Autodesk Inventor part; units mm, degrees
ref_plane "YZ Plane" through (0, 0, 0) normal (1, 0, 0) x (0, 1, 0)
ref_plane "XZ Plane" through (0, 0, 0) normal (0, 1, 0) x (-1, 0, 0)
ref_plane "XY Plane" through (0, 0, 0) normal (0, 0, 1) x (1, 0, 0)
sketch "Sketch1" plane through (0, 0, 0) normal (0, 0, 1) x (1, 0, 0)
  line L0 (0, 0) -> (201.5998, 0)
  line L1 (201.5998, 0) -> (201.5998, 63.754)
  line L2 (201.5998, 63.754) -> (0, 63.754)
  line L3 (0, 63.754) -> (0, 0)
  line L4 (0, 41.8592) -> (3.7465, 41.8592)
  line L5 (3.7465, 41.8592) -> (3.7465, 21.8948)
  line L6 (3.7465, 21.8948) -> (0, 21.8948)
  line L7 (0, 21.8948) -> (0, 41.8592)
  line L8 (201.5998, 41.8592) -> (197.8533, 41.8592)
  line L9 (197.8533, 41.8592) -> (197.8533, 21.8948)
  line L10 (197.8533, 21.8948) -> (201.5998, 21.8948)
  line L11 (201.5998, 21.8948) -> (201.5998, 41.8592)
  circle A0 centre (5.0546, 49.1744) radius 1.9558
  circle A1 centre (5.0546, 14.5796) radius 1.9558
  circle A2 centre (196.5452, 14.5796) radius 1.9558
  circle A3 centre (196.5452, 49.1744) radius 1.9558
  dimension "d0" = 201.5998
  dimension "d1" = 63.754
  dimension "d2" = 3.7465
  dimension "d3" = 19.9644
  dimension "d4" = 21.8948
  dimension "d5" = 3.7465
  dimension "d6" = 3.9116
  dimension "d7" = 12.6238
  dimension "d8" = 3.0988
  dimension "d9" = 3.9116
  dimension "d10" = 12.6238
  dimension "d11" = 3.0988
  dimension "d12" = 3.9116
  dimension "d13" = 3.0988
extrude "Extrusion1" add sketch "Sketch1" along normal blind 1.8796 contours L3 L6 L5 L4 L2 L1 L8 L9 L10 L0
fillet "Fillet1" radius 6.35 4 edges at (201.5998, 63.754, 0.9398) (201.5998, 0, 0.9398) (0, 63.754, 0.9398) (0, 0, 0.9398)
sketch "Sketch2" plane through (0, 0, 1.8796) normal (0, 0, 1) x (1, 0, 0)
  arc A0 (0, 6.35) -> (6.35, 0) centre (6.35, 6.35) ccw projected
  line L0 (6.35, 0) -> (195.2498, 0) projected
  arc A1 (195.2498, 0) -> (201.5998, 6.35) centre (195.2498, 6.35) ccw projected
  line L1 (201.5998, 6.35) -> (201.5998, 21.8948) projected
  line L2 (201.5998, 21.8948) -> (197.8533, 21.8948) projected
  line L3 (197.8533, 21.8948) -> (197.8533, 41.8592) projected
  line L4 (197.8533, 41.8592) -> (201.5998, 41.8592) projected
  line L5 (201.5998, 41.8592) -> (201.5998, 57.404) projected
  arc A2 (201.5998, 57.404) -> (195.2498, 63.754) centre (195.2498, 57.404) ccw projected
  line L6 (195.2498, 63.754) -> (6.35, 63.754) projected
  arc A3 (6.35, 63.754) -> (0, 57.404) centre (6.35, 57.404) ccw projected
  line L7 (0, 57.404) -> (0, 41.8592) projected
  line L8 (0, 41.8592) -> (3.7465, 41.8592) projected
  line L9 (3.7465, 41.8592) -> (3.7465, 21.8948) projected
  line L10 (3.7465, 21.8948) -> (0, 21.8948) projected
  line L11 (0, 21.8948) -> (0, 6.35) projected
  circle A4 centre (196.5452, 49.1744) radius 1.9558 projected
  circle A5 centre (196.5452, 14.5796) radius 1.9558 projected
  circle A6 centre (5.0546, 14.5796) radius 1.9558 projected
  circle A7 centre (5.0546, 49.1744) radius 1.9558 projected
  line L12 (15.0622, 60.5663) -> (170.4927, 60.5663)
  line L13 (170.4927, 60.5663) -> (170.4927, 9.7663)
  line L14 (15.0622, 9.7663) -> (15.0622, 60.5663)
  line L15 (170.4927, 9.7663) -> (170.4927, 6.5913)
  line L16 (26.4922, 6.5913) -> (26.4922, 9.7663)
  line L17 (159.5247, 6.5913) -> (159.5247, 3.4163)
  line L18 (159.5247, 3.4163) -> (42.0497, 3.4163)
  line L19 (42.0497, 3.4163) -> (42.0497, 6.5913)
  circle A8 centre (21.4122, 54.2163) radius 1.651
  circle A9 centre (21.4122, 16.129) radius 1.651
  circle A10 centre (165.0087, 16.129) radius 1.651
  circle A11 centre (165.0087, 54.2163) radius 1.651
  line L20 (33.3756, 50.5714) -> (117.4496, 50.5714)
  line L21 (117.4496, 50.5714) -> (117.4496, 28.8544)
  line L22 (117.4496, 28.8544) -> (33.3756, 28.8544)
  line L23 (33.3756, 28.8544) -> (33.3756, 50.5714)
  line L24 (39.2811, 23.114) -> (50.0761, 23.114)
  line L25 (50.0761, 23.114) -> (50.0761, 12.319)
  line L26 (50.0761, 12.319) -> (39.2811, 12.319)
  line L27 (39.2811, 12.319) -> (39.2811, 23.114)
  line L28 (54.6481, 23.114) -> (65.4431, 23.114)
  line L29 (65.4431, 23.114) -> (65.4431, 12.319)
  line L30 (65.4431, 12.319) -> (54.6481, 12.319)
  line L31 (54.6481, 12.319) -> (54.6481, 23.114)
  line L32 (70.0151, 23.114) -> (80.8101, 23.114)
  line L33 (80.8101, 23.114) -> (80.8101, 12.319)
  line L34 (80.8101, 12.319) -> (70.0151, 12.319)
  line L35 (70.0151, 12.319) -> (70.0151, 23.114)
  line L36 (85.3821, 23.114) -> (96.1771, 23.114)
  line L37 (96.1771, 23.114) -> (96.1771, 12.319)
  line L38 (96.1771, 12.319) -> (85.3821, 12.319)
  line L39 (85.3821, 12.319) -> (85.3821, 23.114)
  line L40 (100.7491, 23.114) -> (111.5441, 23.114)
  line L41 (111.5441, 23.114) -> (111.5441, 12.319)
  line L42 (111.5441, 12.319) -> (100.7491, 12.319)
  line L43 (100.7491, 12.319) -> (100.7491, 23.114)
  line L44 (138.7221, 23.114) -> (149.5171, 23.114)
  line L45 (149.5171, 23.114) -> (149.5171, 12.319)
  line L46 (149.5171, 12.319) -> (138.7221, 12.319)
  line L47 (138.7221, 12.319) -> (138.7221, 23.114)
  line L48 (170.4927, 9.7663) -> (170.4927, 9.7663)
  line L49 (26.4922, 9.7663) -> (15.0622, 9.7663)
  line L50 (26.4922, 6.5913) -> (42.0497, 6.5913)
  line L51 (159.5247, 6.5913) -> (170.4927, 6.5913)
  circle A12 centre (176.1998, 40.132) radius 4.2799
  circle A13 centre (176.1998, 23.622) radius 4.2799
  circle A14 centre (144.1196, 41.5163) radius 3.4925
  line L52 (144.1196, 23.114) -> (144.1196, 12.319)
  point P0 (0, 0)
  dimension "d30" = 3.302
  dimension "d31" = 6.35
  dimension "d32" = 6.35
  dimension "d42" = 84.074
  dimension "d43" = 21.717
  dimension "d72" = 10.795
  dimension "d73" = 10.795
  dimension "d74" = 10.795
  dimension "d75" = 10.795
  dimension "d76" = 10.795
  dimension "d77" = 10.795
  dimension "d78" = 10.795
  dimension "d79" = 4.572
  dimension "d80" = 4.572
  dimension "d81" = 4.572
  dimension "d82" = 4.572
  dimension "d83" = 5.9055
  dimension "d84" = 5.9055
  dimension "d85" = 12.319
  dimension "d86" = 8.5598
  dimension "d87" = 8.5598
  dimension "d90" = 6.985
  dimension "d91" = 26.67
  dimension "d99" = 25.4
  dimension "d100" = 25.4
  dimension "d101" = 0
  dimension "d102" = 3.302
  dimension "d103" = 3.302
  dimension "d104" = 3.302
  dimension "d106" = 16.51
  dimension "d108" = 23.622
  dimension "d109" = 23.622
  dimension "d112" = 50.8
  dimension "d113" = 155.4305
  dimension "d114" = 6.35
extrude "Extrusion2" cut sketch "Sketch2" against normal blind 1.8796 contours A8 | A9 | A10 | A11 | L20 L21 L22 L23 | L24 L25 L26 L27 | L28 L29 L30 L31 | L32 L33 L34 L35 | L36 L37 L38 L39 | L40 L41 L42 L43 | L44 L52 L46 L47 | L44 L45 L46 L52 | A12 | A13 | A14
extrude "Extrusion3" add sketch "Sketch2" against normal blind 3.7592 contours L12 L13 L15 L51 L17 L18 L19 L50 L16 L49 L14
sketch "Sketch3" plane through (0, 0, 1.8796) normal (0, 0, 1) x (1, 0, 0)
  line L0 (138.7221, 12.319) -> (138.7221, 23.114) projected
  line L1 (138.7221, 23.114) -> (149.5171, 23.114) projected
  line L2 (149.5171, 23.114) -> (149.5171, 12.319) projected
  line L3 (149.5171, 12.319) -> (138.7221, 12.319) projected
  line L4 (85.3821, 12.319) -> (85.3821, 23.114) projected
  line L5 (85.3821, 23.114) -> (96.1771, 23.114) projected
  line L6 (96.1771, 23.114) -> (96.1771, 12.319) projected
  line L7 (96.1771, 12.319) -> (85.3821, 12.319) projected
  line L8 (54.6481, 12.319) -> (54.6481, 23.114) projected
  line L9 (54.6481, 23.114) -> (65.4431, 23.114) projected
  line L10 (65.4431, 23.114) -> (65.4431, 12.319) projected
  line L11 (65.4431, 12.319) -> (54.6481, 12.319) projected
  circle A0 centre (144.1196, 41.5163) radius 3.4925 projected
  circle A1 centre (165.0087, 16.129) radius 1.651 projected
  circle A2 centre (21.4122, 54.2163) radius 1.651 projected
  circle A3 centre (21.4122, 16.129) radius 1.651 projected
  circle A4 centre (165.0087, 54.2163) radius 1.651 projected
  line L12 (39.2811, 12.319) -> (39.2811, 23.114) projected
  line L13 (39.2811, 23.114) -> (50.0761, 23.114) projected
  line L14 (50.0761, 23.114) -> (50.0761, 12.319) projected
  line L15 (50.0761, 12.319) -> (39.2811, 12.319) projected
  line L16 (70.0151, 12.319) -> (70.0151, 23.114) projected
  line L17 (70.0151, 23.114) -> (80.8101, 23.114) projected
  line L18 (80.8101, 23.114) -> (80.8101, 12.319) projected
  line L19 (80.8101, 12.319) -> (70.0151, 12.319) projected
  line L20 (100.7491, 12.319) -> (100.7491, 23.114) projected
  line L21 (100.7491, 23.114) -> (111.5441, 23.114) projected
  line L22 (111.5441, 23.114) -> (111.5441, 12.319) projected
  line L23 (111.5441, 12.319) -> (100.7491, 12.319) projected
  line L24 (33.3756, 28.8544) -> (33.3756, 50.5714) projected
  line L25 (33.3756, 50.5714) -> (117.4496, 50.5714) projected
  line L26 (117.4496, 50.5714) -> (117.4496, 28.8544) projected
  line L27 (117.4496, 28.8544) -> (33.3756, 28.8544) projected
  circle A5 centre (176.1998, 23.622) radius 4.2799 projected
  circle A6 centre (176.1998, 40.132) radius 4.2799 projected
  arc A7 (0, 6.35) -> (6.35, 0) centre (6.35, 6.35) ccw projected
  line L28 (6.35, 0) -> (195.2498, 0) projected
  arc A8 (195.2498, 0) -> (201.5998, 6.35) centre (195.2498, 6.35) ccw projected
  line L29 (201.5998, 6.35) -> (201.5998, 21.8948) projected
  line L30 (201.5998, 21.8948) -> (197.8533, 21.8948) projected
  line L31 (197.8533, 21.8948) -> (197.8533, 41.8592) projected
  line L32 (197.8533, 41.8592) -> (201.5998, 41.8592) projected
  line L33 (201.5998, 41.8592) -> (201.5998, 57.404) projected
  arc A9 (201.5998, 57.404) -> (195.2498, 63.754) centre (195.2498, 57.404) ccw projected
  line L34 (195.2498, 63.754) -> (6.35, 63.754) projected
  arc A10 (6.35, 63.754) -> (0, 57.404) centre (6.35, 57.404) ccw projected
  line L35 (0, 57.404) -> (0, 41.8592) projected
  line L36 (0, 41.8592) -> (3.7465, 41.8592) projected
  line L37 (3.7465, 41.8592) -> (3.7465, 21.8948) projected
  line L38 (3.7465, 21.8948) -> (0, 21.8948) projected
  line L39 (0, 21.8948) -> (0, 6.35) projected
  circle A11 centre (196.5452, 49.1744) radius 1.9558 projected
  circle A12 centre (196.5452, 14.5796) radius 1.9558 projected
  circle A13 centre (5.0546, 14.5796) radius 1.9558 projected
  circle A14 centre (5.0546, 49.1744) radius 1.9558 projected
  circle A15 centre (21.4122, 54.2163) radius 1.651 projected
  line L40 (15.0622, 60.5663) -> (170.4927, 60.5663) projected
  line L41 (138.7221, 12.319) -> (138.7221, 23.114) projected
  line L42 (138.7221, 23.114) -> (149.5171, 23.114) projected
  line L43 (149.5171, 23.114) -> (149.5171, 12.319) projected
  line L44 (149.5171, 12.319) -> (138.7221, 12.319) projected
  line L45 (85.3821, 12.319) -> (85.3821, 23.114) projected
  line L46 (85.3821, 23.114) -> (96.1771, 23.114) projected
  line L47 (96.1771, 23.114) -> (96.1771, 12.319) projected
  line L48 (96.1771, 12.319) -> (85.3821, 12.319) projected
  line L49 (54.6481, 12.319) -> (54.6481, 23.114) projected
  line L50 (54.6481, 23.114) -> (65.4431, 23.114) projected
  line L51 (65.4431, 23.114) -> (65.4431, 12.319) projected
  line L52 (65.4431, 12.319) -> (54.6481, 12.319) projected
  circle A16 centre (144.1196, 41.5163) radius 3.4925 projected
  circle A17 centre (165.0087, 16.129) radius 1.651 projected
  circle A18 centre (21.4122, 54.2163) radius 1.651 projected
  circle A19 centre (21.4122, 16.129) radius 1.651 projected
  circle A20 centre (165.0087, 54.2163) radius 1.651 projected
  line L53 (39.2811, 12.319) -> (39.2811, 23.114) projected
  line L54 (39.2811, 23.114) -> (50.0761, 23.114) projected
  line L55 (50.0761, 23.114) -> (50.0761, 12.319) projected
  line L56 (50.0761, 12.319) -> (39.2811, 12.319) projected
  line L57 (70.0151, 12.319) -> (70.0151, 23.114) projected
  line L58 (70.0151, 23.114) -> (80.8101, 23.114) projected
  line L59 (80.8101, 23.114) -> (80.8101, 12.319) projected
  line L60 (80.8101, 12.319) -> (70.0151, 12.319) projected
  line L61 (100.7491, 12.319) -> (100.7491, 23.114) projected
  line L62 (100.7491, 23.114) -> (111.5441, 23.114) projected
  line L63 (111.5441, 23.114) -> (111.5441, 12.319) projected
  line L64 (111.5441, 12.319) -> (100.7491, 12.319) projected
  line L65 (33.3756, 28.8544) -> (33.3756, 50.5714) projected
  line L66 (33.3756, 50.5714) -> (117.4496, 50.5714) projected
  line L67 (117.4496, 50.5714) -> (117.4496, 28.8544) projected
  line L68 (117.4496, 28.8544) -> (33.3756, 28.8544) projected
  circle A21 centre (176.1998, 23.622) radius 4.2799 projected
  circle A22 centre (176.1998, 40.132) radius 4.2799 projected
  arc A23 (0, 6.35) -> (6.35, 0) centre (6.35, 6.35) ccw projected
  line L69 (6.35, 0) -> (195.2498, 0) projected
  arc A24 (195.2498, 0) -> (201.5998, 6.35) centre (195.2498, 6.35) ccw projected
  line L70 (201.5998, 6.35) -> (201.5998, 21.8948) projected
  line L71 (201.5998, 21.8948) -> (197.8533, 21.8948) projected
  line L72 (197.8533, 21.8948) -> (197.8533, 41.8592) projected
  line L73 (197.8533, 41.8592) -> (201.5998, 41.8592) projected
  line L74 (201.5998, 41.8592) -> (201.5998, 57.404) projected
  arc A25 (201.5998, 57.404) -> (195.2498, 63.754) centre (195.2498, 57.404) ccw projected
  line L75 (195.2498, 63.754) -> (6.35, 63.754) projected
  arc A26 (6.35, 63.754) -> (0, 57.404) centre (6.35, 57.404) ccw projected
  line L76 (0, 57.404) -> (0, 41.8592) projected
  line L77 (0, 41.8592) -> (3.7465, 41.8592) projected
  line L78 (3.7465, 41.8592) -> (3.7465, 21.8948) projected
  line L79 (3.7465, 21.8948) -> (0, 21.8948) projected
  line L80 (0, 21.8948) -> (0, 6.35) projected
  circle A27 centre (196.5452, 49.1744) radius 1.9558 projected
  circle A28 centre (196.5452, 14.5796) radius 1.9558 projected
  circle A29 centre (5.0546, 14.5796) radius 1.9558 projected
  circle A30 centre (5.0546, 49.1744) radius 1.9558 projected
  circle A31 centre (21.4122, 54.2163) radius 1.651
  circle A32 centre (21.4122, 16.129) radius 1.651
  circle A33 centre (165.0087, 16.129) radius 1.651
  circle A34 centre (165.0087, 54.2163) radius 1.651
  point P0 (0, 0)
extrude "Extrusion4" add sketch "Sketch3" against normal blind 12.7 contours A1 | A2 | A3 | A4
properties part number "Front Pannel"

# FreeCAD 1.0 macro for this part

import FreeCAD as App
import Part
import Sketcher

V = App.Vector
Q = App.Units.Quantity


def edges_at(feature, points):
    """Names of the edges that pass closest to the given points."""
    edges = feature.Shape.Edges
    near = lambda p: min(range(len(edges)), key=lambda i: edges[i].distToShape(Part.Vertex(*p))[0])
    return sorted({f"Edge{near(p) + 1}" for p in points})

doc = App.newDocument("Part")
body = doc.addObject("PartDesign::Body", "Body")

# Sketch on XY plane
sketch1 = doc.addObject("Sketcher::SketchObject", "Sketch")
body.addObject(sketch1)
sketch1.AttachmentSupport = (doc.XY_Plane, [""])
sketch1.MapMode = "FlatFace"
sketch1.addGeometry([
    Part.LineSegment(V(0, 21.8948, 0), V(0, 0, 0)),  # 0
    Part.LineSegment(V(0, 0, 0), V(201.5998, 0, 0)),  # 1
    Part.LineSegment(V(201.5998, 0, 0), V(201.5998, 21.8948, 0)),  # 2
    Part.LineSegment(V(201.5998, 21.8948, 0), V(197.8533, 21.8948, 0)),  # 3
    Part.LineSegment(V(197.8533, 21.8948, 0), V(197.8533, 41.8592, 0)),  # 4
    Part.LineSegment(V(197.8533, 41.8592, 0), V(201.5998, 41.8592, 0)),  # 5
    Part.LineSegment(V(201.5998, 41.8592, 0), V(201.5998, 63.754, 0)),  # 6
    Part.LineSegment(V(201.5998, 63.754, 0), V(0, 63.754, 0)),  # 7
    Part.LineSegment(V(0, 63.754, 0), V(0, 41.8592, 0)),  # 8
    Part.LineSegment(V(0, 41.8592, 0), V(3.7465, 41.8592, 0)),  # 9
    Part.LineSegment(V(3.7465, 41.8592, 0), V(3.7465, 21.8948, 0)),  # 10
    Part.LineSegment(V(3.7465, 21.8948, 0), V(0, 21.8948, 0)),  # 11
    Part.Circle(V(5.0546, 14.5796, 0), V(0, 0, 1), 1.9558),  # 12
    Part.Circle(V(196.5452, 14.5796, 0), V(0, 0, 1), 1.9558),  # 13
    Part.Circle(V(5.0546, 49.1744, 0), V(0, 0, 1), 1.9558),  # 14
    Part.Circle(V(196.5452, 49.1744, 0), V(0, 0, 1), 1.9558),  # 15
], False)
sketch1.addConstraint([
    Sketcher.Constraint("Coincident", 0, 2, 1, 1),
    Sketcher.Constraint("Coincident", 1, 2, 2, 1),
    Sketcher.Constraint("Coincident", 2, 2, 3, 1),
    Sketcher.Constraint("Coincident", 3, 2, 4, 1),
    Sketcher.Constraint("Coincident", 4, 2, 5, 1),
    Sketcher.Constraint("Coincident", 5, 2, 6, 1),
    Sketcher.Constraint("Coincident", 6, 2, 7, 1),
    Sketcher.Constraint("Coincident", 7, 2, 8, 1),
    Sketcher.Constraint("Coincident", 8, 2, 9, 1),
    Sketcher.Constraint("Coincident", 9, 2, 10, 1),
    Sketcher.Constraint("Coincident", 10, 2, 11, 1),
    Sketcher.Constraint("Coincident", 11, 2, 0, 1),
    Sketcher.Constraint("Vertical", 0),
    Sketcher.Constraint("Horizontal", 1),
    Sketcher.Constraint("Vertical", 2),
    Sketcher.Constraint("Horizontal", 3),
    Sketcher.Constraint("Vertical", 4),
    Sketcher.Constraint("Horizontal", 5),
    Sketcher.Constraint("Vertical", 6),
    Sketcher.Constraint("Horizontal", 7),
    Sketcher.Constraint("Vertical", 8),
    Sketcher.Constraint("Horizontal", 9),
    Sketcher.Constraint("Vertical", 10),
    Sketcher.Constraint("Horizontal", 11),
    Sketcher.Constraint("Coincident", 0, 2, -1, 1),
    Sketcher.Constraint("Equal", 12, 13),
    Sketcher.Constraint("Equal", 13, 14),
    Sketcher.Constraint("Equal", 14, 15),
    Sketcher.Constraint("PointOnObject", 7, 2, -2),
    Sketcher.Constraint("Horizontal", 12, 3, 13, 3),
    Sketcher.Constraint("Horizontal", 14, 3, 15, 3),
    Sketcher.Constraint("Horizontal", 5, 2, 8, 2),
    Sketcher.Constraint("Horizontal", 3, 2, 10, 2),
    Sketcher.Constraint("Vertical", 12, 3, 14, 3),
    Sketcher.Constraint("Vertical", 13, 3, 15, 3),
    Sketcher.Constraint("Vertical", 2, 2, 5, 2),
    Sketcher.Constraint("Equal", 5, 9),
    Sketcher.Constraint("Equal", 2, 6),
    Sketcher.Constraint("Diameter", 12, Q("0.154 in")),
    Sketcher.Constraint("DistanceX", 1, 1, 1, 2, Q("7.937 in")),
    Sketcher.Constraint("DistanceY", 0, 2, 0, 1, Q("0.862 in")),
    Sketcher.Constraint("DistanceY", 4, 1, 4, 2, Q("0.786 in")),
    Sketcher.Constraint("DistanceX", 3, 2, 3, 1, Q("0.1475 in")),
    Sketcher.Constraint("DistanceX", -1, 1, 12, 3, Q("0.199 in")),
    Sketcher.Constraint("DistanceY", -1, 1, 12, 3, Q("0.574 in")),
    Sketcher.Constraint("DistanceX", -1, 1, 13, 3, Q("7.738 in")),
    Sketcher.Constraint("DistanceY", -1, 1, 14, 3, Q("1.936 in")),
])
pad1 = doc.addObject("PartDesign::Pad", "Pad")
body.addObject(pad1)
pad1.Profile = sketch1
pad1.Length = Q("0.074 in")
doc.recompute()

fillet = doc.addObject("PartDesign::Fillet", "Fillet")
body.addObject(fillet)
fillet.Base = (pad1, edges_at(pad1, [
    (201.6, 63.754, 0.94),
    (201.6, 0, 0.94),
    (0, 63.754, 0.94),
    (0, 0, 0.94),
]))
fillet.Radius = Q("0.25 in")

# Sketch on XY plane
sketch2 = doc.addObject("Sketcher::SketchObject", "Sketch001")
body.addObject(sketch2)
sketch2.AttachmentSupport = (doc.XY_Plane, [""])
sketch2.MapMode = "FlatFace"
sketch2.AttachmentOffset = App.Placement(V(0, 0, 0.074 * 25.4), App.Rotation())
sketch2.addGeometry([
    Part.Circle(V(21.4122, 54.2163, 0), V(0, 0, 1), 1.651),  # 0
    Part.Circle(V(21.4122, 16.129, 0), V(0, 0, 1), 1.651),  # 1
    Part.Circle(V(165.0087, 16.129, 0), V(0, 0, 1), 1.651),  # 2
    Part.Circle(V(165.0087, 54.2163, 0), V(0, 0, 1), 1.651),  # 3
    Part.LineSegment(V(117.4496, 50.5714, 0), V(33.3756, 50.5714, 0)),  # 4
    Part.LineSegment(V(33.3756, 50.5714, 0), V(33.3756, 28.8544, 0)),  # 5
    Part.LineSegment(V(33.3756, 28.8544, 0), V(117.4496, 28.8544, 0)),  # 6
    Part.LineSegment(V(117.4496, 28.8544, 0), V(117.4496, 50.5714, 0)),  # 7
    Part.LineSegment(V(50.0761, 23.114, 0), V(39.2811, 23.114, 0)),  # 8
    Part.LineSegment(V(39.2811, 23.114, 0), V(39.2811, 12.319, 0)),  # 9
    Part.LineSegment(V(39.2811, 12.319, 0), V(50.0761, 12.319, 0)),  # 10
    Part.LineSegment(V(50.0761, 12.319, 0), V(50.0761, 23.114, 0)),  # 11
    Part.LineSegment(V(65.4431, 23.114, 0), V(54.6481, 23.114, 0)),  # 12
    Part.LineSegment(V(54.6481, 23.114, 0), V(54.6481, 12.319, 0)),  # 13
    Part.LineSegment(V(54.6481, 12.319, 0), V(65.4431, 12.319, 0)),  # 14
    Part.LineSegment(V(65.4431, 12.319, 0), V(65.4431, 23.114, 0)),  # 15
    Part.LineSegment(V(80.8101, 23.114, 0), V(70.0151, 23.114, 0)),  # 16
    Part.LineSegment(V(70.0151, 23.114, 0), V(70.0151, 12.319, 0)),  # 17
    Part.LineSegment(V(70.0151, 12.319, 0), V(80.8101, 12.319, 0)),  # 18
    Part.LineSegment(V(80.8101, 12.319, 0), V(80.8101, 23.114, 0)),  # 19
    Part.LineSegment(V(96.1771, 23.114, 0), V(85.3821, 23.114, 0)),  # 20
    Part.LineSegment(V(85.3821, 23.114, 0), V(85.3821, 12.319, 0)),  # 21
    Part.LineSegment(V(85.3821, 12.319, 0), V(96.1771, 12.319, 0)),  # 22
    Part.LineSegment(V(96.1771, 12.319, 0), V(96.1771, 23.114, 0)),  # 23
    Part.LineSegment(V(111.5441, 23.114, 0), V(100.7491, 23.114, 0)),  # 24
    Part.LineSegment(V(100.7491, 23.114, 0), V(100.7491, 12.319, 0)),  # 25
    Part.LineSegment(V(100.7491, 12.319, 0), V(111.5441, 12.319, 0)),  # 26
    Part.LineSegment(V(111.5441, 12.319, 0), V(111.5441, 23.114, 0)),  # 27
    Part.LineSegment(V(138.7221, 23.114, 0), V(138.7221, 12.319, 0)),  # 28
    Part.LineSegment(V(138.7221, 12.319, 0), V(149.5171, 12.319, 0)),  # 29
    Part.LineSegment(V(149.5171, 12.319, 0), V(149.5171, 23.114, 0)),  # 30
    Part.LineSegment(V(149.5171, 23.114, 0), V(138.7221, 23.114, 0)),  # 31
    Part.Circle(V(176.1998, 40.132, 0), V(0, 0, 1), 4.2799),  # 32
    Part.Circle(V(176.1998, 23.622, 0), V(0, 0, 1), 4.2799),  # 33
    Part.Circle(V(144.1196, 41.5163, 0), V(0, 0, 1), 3.4925),  # 34
], False)
sketch2.addConstraint([
    Sketcher.Constraint("Coincident", 4, 2, 5, 1),
    Sketcher.Constraint("Coincident", 5, 2, 6, 1),
    Sketcher.Constraint("Coincident", 6, 2, 7, 1),
    Sketcher.Constraint("Coincident", 7, 2, 4, 1),
    Sketcher.Constraint("Coincident", 8, 2, 9, 1),
    Sketcher.Constraint("Coincident", 9, 2, 10, 1),
    Sketcher.Constraint("Coincident", 10, 2, 11, 1),
    Sketcher.Constraint("Coincident", 11, 2, 8, 1),
    Sketcher.Constraint("Coincident", 12, 2, 13, 1),
    Sketcher.Constraint("Coincident", 13, 2, 14, 1),
    Sketcher.Constraint("Coincident", 14, 2, 15, 1),
    Sketcher.Constraint("Coincident", 15, 2, 12, 1),
    Sketcher.Constraint("Coincident", 16, 2, 17, 1),
    Sketcher.Constraint("Coincident", 17, 2, 18, 1),
    Sketcher.Constraint("Coincident", 18, 2, 19, 1),
    Sketcher.Constraint("Coincident", 19, 2, 16, 1),
    Sketcher.Constraint("Coincident", 20, 2, 21, 1),
    Sketcher.Constraint("Coincident", 21, 2, 22, 1),
    Sketcher.Constraint("Coincident", 22, 2, 23, 1),
    Sketcher.Constraint("Coincident", 23, 2, 20, 1),
    Sketcher.Constraint("Coincident", 24, 2, 25, 1),
    Sketcher.Constraint("Coincident", 25, 2, 26, 1),
    Sketcher.Constraint("Coincident", 26, 2, 27, 1),
    Sketcher.Constraint("Coincident", 27, 2, 24, 1),
    Sketcher.Constraint("Coincident", 28, 2, 29, 1),
    Sketcher.Constraint("Coincident", 29, 2, 30, 1),
    Sketcher.Constraint("Coincident", 30, 2, 31, 1),
    Sketcher.Constraint("Coincident", 31, 2, 28, 1),
    Sketcher.Constraint("Horizontal", 4),
    Sketcher.Constraint("Vertical", 5),
    Sketcher.Constraint("Horizontal", 6),
    Sketcher.Constraint("Vertical", 7),
    Sketcher.Constraint("Horizontal", 8),
    Sketcher.Constraint("Vertical", 9),
    Sketcher.Constraint("Horizontal", 10),
    Sketcher.Constraint("Vertical", 11),
    Sketcher.Constraint("Horizontal", 12),
    Sketcher.Constraint("Vertical", 13),
    Sketcher.Constraint("Horizontal", 14),
    Sketcher.Constraint("Vertical", 15),
    Sketcher.Constraint("Horizontal", 16),
    Sketcher.Constraint("Vertical", 17),
    Sketcher.Constraint("Horizontal", 18),
    Sketcher.Constraint("Vertical", 19),
    Sketcher.Constraint("Horizontal", 20),
    Sketcher.Constraint("Vertical", 21),
    Sketcher.Constraint("Horizontal", 22),
    Sketcher.Constraint("Vertical", 23),
    Sketcher.Constraint("Horizontal", 24),
    Sketcher.Constraint("Vertical", 25),
    Sketcher.Constraint("Horizontal", 26),
    Sketcher.Constraint("Vertical", 27),
    Sketcher.Constraint("Vertical", 28),
    Sketcher.Constraint("Horizontal", 29),
    Sketcher.Constraint("Vertical", 30),
    Sketcher.Constraint("Horizontal", 31),
    Sketcher.Constraint("Equal", 0, 1),
    Sketcher.Constraint("Equal", 1, 2),
    Sketcher.Constraint("Equal", 2, 3),
    Sketcher.Constraint("Equal", 32, 33),
    Sketcher.Constraint("Horizontal", 1, 3, 2, 3),
    Sketcher.Constraint("Horizontal", 0, 3, 3, 3),
    Sketcher.Constraint("Horizontal", 11, 2, 12, 2),
    Sketcher.Constraint("Horizontal", 10, 2, 13, 2),
    Sketcher.Constraint("Horizontal", 15, 2, 16, 2),
    Sketcher.Constraint("Horizontal", 14, 2, 17, 2),
    Sketcher.Constraint("Horizontal", 19, 2, 20, 2),
    Sketcher.Constraint("Horizontal", 18, 2, 21, 2),
    Sketcher.Constraint("Horizontal", 23, 2, 24, 2),
    Sketcher.Constraint("Horizontal", 22, 2, 25, 2),
    Sketcher.Constraint("Horizontal", 26, 2, 28, 2),
    Sketcher.Constraint("Horizontal", 27, 2, 30, 2),
    Sketcher.Constraint("Vertical", 0, 3, 1, 3),
    Sketcher.Constraint("Vertical", 2, 3, 3, 3),
    Sketcher.Constraint("Vertical", 32, 3, 33, 3),
    Sketcher.Constraint("Equal", 10, 12),
    Sketcher.Constraint("Equal", 14, 16),
    Sketcher.Constraint("Equal", 18, 20),
    Sketcher.Constraint("Equal", 22, 24),
    Sketcher.Constraint("Equal", 26, 29),
    Sketcher.Constraint("Equal", 31, 9),
    Sketcher.Constraint("Diameter", 0, Q("0.13 in")),
    Sketcher.Constraint("Diameter", 32, Q("0.337 in")),
    Sketcher.Constraint("Diameter", 34, Q("0.275 in")),
    Sketcher.Constraint("DistanceX", 4, 2, 4, 1, Q("3.31 in")),
    Sketcher.Constraint("DistanceX", 8, 2, 8, 1, Q("0.425 in")),
    Sketcher.Constraint("DistanceY", 5, 2, 5, 1, Q("0.855 in")),
    Sketcher.Constraint("DistanceY", -1, 1, 33, 3, Q("0.93 in")),
    Sketcher.Constraint("DistanceY", 33, 3, 32, 3, Q("0.65 in")),
    Sketcher.Constraint("DistanceX", 6, 2, 34, 3, Q("1.05 in")),
    Sketcher.Constraint("DistanceX", 11, 2, 12, 2, Q("0.18 in")),
    Sketcher.Constraint("DistanceX", 15, 2, 16, 2, Q("0.18 in")),
    Sketcher.Constraint("DistanceX", 19, 2, 20, 2, Q("0.18 in")),
    Sketcher.Constraint("DistanceX", 23, 2, 24, 2, Q("0.18 in")),
    Sketcher.Constraint("DistanceY", -1, 1, 9, 2, Q("0.485 in")),
    Sketcher.Constraint("DistanceY", 1, 3, 8, 2, Q("0.275 in")),
    Sketcher.Constraint("DistanceY", 34, 3, 3, 3, Q("0.5 in")),
    Sketcher.Constraint("DistanceX", 5, 2, 8, 2, Q("0.2325 in")),
    Sketcher.Constraint("DistanceX", 26, 2, 28, 2, Q("1.07 in")),
    Sketcher.Constraint("DistanceX", -1, 1, 0, 3, Q("0.843 in")),
    Sketcher.Constraint("DistanceX", -1, 1, 32, 3, Q("6.937 in")),
    Sketcher.Constraint("DistanceX", -1, 1, 34, 3, Q("5.674 in")),
    Sketcher.Constraint("DistanceY", -1, 1, 4, 2, Q("1.991 in")),
    Sketcher.Constraint("DistanceY", -1, 1, 0, 3, Q("2.1345 in")),
    Sketcher.Constraint("DistanceX", -1, 1, 2, 3, Q("6.4964 in")),
])
pocket1 = doc.addObject("PartDesign::Pocket", "Pocket")
body.addObject(pocket1)
pocket1.Profile = sketch2
pocket1.Length = Q("0.074 in")

# Sketch on XY plane
sketch3 = doc.addObject("Sketcher::SketchObject", "Sketch002")
body.addObject(sketch3)
sketch3.AttachmentSupport = (doc.XY_Plane, [""])
sketch3.MapMode = "FlatFace"
sketch3.AttachmentOffset = App.Placement(V(0, 0, 0.074 * 25.4), App.Rotation())
sketch3.addGeometry([
    Part.LineSegment(V(170.4927, 60.5663, 0), V(15.0622, 60.5663, 0)),  # 0
    Part.LineSegment(V(15.0622, 60.5663, 0), V(15.0622, 9.7663, 0)),  # 1
    Part.LineSegment(V(15.0622, 9.7663, 0), V(26.4922, 9.7663, 0)),  # 2
    Part.LineSegment(V(26.4922, 9.7663, 0), V(26.4922, 6.5913, 0)),  # 3
    Part.LineSegment(V(26.4922, 6.5913, 0), V(42.0497, 6.5913, 0)),  # 4
    Part.LineSegment(V(42.0497, 6.5913, 0), V(42.0497, 3.4163, 0)),  # 5
    Part.LineSegment(V(42.0497, 3.4163, 0), V(159.5247, 3.4163, 0)),  # 6
    Part.LineSegment(V(159.5247, 3.4163, 0), V(159.5247, 6.5913, 0)),  # 7
    Part.LineSegment(V(159.5247, 6.5913, 0), V(170.4927, 6.5913, 0)),  # 8
    Part.LineSegment(V(170.4927, 6.5913, 0), V(170.4927, 60.5663, 0)),  # 9
    Part.Circle(V(21.4122, 16.129, 0), V(0, 0, 1), 1.651),  # 10
    Part.LineSegment(V(39.2811, 12.319, 0), V(39.2811, 23.114, 0)),  # 11
    Part.LineSegment(V(39.2811, 23.114, 0), V(50.0761, 23.114, 0)),  # 12
    Part.LineSegment(V(50.0761, 23.114, 0), V(50.0761, 12.319, 0)),  # 13
    Part.LineSegment(V(50.0761, 12.319, 0), V(39.2811, 12.319, 0)),  # 14
    Part.LineSegment(V(54.6481, 12.319, 0), V(54.6481, 23.114, 0)),  # 15
    Part.LineSegment(V(54.6481, 23.114, 0), V(65.4431, 23.114, 0)),  # 16
    Part.LineSegment(V(65.4431, 23.114, 0), V(65.4431, 12.319, 0)),  # 17
    Part.LineSegment(V(65.4431, 12.319, 0), V(54.6481, 12.319, 0)),  # 18
    Part.LineSegment(V(70.0151, 12.319, 0), V(70.0151, 23.114, 0)),  # 19
    Part.LineSegment(V(70.0151, 23.114, 0), V(80.8101, 23.114, 0)),  # 20
    Part.LineSegment(V(80.8101, 23.114, 0), V(80.8101, 12.319, 0)),  # 21
    Part.LineSegment(V(80.8101, 12.319, 0), V(70.0151, 12.319, 0)),  # 22
    Part.LineSegment(V(85.3821, 12.319, 0), V(85.3821, 23.114, 0)),  # 23
    Part.LineSegment(V(85.3821, 23.114, 0), V(96.1771, 23.114, 0)),  # 24
    Part.LineSegment(V(96.1771, 23.114, 0), V(96.1771, 12.319, 0)),  # 25
    Part.LineSegment(V(96.1771, 12.319, 0), V(85.3821, 12.319, 0)),  # 26
    Part.LineSegment(V(100.7491, 12.319, 0), V(100.7491, 23.114, 0)),  # 27
    Part.LineSegment(V(100.7491, 23.114, 0), V(111.5441, 23.114, 0)),  # 28
    Part.LineSegment(V(111.5441, 23.114, 0), V(111.5441, 12.319, 0)),  # 29
    Part.LineSegment(V(111.5441, 12.319, 0), V(100.7491, 12.319, 0)),  # 30
    Part.LineSegment(V(138.7221, 12.319, 0), V(138.7221, 23.114, 0)),  # 31
    Part.LineSegment(V(138.7221, 23.114, 0), V(149.5171, 23.114, 0)),  # 32
    Part.LineSegment(V(149.5171, 23.114, 0), V(149.5171, 12.319, 0)),  # 33
    Part.LineSegment(V(149.5171, 12.319, 0), V(138.7221, 12.319, 0)),  # 34
    Part.Circle(V(165.0087, 16.129, 0), V(0, 0, 1), 1.651),  # 35
    Part.LineSegment(V(33.3756, 28.8544, 0), V(33.3756, 50.5714, 0)),  # 36
    Part.LineSegment(V(33.3756, 50.5714, 0), V(117.4496, 50.5714, 0)),  # 37
    Part.LineSegment(V(117.4496, 50.5714, 0), V(117.4496, 28.8544, 0)),  # 38
    Part.LineSegment(V(117.4496, 28.8544, 0), V(33.3756, 28.8544, 0)),  # 39
    Part.Circle(V(21.4122, 54.2163, 0), V(0, 0, 1), 1.651),  # 40
    Part.Circle(V(144.1196, 41.5163, 0), V(0, 0, 1), 3.4925),  # 41
    Part.Circle(V(165.0087, 54.2163, 0), V(0, 0, 1), 1.651),  # 42
], False)
sketch3.addConstraint([
    Sketcher.Constraint("Coincident", 0, 2, 1, 1),
    Sketcher.Constraint("Coincident", 1, 2, 2, 1),
    Sketcher.Constraint("Coincident", 2, 2, 3, 1),
    Sketcher.Constraint("Coincident", 3, 2, 4, 1),
    Sketcher.Constraint("Coincident", 4, 2, 5, 1),
    Sketcher.Constraint("Coincident", 5, 2, 6, 1),
    Sketcher.Constraint("Coincident", 6, 2, 7, 1),
    Sketcher.Constraint("Coincident", 7, 2, 8, 1),
    Sketcher.Constraint("Coincident", 8, 2, 9, 1),
    Sketcher.Constraint("Coincident", 9, 2, 0, 1),
    Sketcher.Constraint("Coincident", 11, 2, 12, 1),
    Sketcher.Constraint("Coincident", 12, 2, 13, 1),
    Sketcher.Constraint("Coincident", 13, 2, 14, 1),
    Sketcher.Constraint("Coincident", 14, 2, 11, 1),
    Sketcher.Constraint("Coincident", 15, 2, 16, 1),
    Sketcher.Constraint("Coincident", 16, 2, 17, 1),
    Sketcher.Constraint("Coincident", 17, 2, 18, 1),
    Sketcher.Constraint("Coincident", 18, 2, 15, 1),
    Sketcher.Constraint("Coincident", 19, 2, 20, 1),
    Sketcher.Constraint("Coincident", 20, 2, 21, 1),
    Sketcher.Constraint("Coincident", 21, 2, 22, 1),
    Sketcher.Constraint("Coincident", 22, 2, 19, 1),
    Sketcher.Constraint("Coincident", 23, 2, 24, 1),
    Sketcher.Constraint("Coincident", 24, 2, 25, 1),
    Sketcher.Constraint("Coincident", 25, 2, 26, 1),
    Sketcher.Constraint("Coincident", 26, 2, 23, 1),
    Sketcher.Constraint("Coincident", 27, 2, 28, 1),
    Sketcher.Constraint("Coincident", 28, 2, 29, 1),
    Sketcher.Constraint("Coincident", 29, 2, 30, 1),
    Sketcher.Constraint("Coincident", 30, 2, 27, 1),
    Sketcher.Constraint("Coincident", 31, 2, 32, 1),
    Sketcher.Constraint("Coincident", 32, 2, 33, 1),
    Sketcher.Constraint("Coincident", 33, 2, 34, 1),
    Sketcher.Constraint("Coincident", 34, 2, 31, 1),
    Sketcher.Constraint("Coincident", 36, 2, 37, 1),
    Sketcher.Constraint("Coincident", 37, 2, 38, 1),
    Sketcher.Constraint("Coincident", 38, 2, 39, 1),
    Sketcher.Constraint("Coincident", 39, 2, 36, 1),
    Sketcher.Constraint("Horizontal", 0),
    Sketcher.Constraint("Vertical", 1),
    Sketcher.Constraint("Horizontal", 2),
    Sketcher.Constraint("Vertical", 3),
    Sketcher.Constraint("Horizontal", 4),
    Sketcher.Constraint("Vertical", 5),
    Sketcher.Constraint("Horizontal", 6),
    Sketcher.Constraint("Vertical", 7),
    Sketcher.Constraint("Horizontal", 8),
    Sketcher.Constraint("Vertical", 9),
    Sketcher.Constraint("Vertical", 11),
    Sketcher.Constraint("Horizontal", 12),
    Sketcher.Constraint("Vertical", 13),
    Sketcher.Constraint("Horizontal", 14),
    Sketcher.Constraint("Vertical", 15),
    Sketcher.Constraint("Horizontal", 16),
    Sketcher.Constraint("Vertical", 17),
    Sketcher.Constraint("Horizontal", 18),
    Sketcher.Constraint("Vertical", 19),
    Sketcher.Constraint("Horizontal", 20),
    Sketcher.Constraint("Vertical", 21),
    Sketcher.Constraint("Horizontal", 22),
    Sketcher.Constraint("Vertical", 23),
    Sketcher.Constraint("Horizontal", 24),
    Sketcher.Constraint("Vertical", 25),
    Sketcher.Constraint("Horizontal", 26),
    Sketcher.Constraint("Vertical", 27),
    Sketcher.Constraint("Horizontal", 28),
    Sketcher.Constraint("Vertical", 29),
    Sketcher.Constraint("Horizontal", 30),
    Sketcher.Constraint("Vertical", 31),
    Sketcher.Constraint("Horizontal", 32),
    Sketcher.Constraint("Vertical", 33),
    Sketcher.Constraint("Horizontal", 34),
    Sketcher.Constraint("Vertical", 36),
    Sketcher.Constraint("Horizontal", 37),
    Sketcher.Constraint("Vertical", 38),
    Sketcher.Constraint("Horizontal", 39),
    Sketcher.Constraint("Equal", 10, 35),
    Sketcher.Constraint("Equal", 35, 40),
    Sketcher.Constraint("Equal", 40, 42),
    Sketcher.Constraint("Horizontal", 10, 3, 35, 3),
    Sketcher.Constraint("Horizontal", 40, 3, 42, 3),
    Sketcher.Constraint("Horizontal", 4, 2, 7, 2),
    Sketcher.Constraint("Horizontal", 12, 2, 15, 2),
    Sketcher.Constraint("Horizontal", 14, 2, 17, 2),
    Sketcher.Constraint("Horizontal", 16, 2, 19, 2),
    Sketcher.Constraint("Horizontal", 18, 2, 21, 2),
    Sketcher.Constraint("Horizontal", 20, 2, 23, 2),
    Sketcher.Constraint("Horizontal", 22, 2, 25, 2),
    Sketcher.Constraint("Horizontal", 24, 2, 27, 2),
    Sketcher.Constraint("Horizontal", 26, 2, 29, 2),
    Sketcher.Constraint("Horizontal", 28, 2, 31, 2),
    Sketcher.Constraint("Horizontal", 30, 2, 33, 2),
    Sketcher.Constraint("Vertical", 10, 3, 40, 3),
    Sketcher.Constraint("Vertical", 35, 3, 42, 3),
    Sketcher.Constraint("Equal", 14, 16),
    Sketcher.Constraint("Equal", 18, 20),
    Sketcher.Constraint("Equal", 22, 24),
    Sketcher.Constraint("Equal", 26, 28),
    Sketcher.Constraint("Equal", 30, 32),
    Sketcher.Constraint("Equal", 3, 5),
    Sketcher.Constraint("Equal", 34, 11),
    Sketcher.Constraint("Diameter", 10, Q("0.13 in")),
    Sketcher.Constraint("DistanceY", 1, 2, 1, 1, Q("2 in")),
    Sketcher.Constraint("Diameter", 41, Q("0.275 in")),
    Sketcher.Constraint("DistanceY", 6, 2, 42, 3, Q("2 in")),
    Sketcher.Constraint("DistanceX", 37, 1, 37, 2, Q("3.31 in")),
    Sketcher.Constraint("DistanceX", 12, 1, 12, 2, Q("0.425 in")),
    Sketcher.Constraint("DistanceY", 36, 1, 36, 2, Q("0.855 in")),
    Sketcher.Constraint("DistanceX", 0, 2, 40, 3, Q("0.25 in")),
    Sketcher.Constraint("DistanceY", 40, 3, 0, 2, Q("0.25 in")),
    Sketcher.Constraint("DistanceX", 12, 2, 15, 2, Q("0.18 in")),
    Sketcher.Constraint("DistanceX", 16, 2, 19, 2, Q("0.18 in")),
    Sketcher.Constraint("DistanceX", 20, 2, 23, 2, Q("0.18 in")),
    Sketcher.Constraint("DistanceX", 24, 2, 27, 2, Q("0.18 in")),
    Sketcher.Constraint("DistanceX", 37, 2, 41, 3, Q("1.05 in")),
    Sketcher.Constraint("DistanceX", 0, 2, 0, 1, Q("6.1193 in")),
    Sketcher.Constraint("DistanceY", -1, 1, 13, 2, Q("0.485 in")),
    Sketcher.Constraint("DistanceY", 10, 3, 11, 2, Q("0.275 in")),
    Sketcher.Constraint("DistanceX", 2, 1, 2, 2, Q("0.45 in")),
    Sketcher.Constraint("DistanceY", 41, 3, 40, 3, Q("0.5 in")),
    Sketcher.Constraint("DistanceX", 36, 2, 11, 2, Q("0.2325 in")),
    Sketcher.Constraint("DistanceX", 6, 1, 6, 2, Q("4.625 in")),
    Sketcher.Constraint("DistanceX", 28, 2, 31, 2, Q("1.07 in")),
    Sketcher.Constraint("DistanceX", 4, 1, 4, 2, Q("0.6125 in")),
    Sketcher.Constraint("DistanceX", -1, 1, 10, 3, Q("0.843 in")),
    Sketcher.Constraint("DistanceX", -1, 1, 41, 3, Q("5.674 in")),
    Sketcher.Constraint("DistanceY", -1, 1, 36, 2, Q("1.991 in")),
    Sketcher.Constraint("DistanceX", -1, 1, 35, 3, Q("6.4964 in")),
    Sketcher.Constraint("DistanceY", -1, 1, 40, 3, Q("2.1345 in")),
])
pad2 = doc.addObject("PartDesign::Pad", "Pad001")
body.addObject(pad2)
pad2.Profile = sketch3
pad2.Length = Q("0.148 in")
pad2.Reversed = True

# Sketch on XY plane
sketch4 = doc.addObject("Sketcher::SketchObject", "Sketch003")
body.addObject(sketch4)
sketch4.AttachmentSupport = (doc.XY_Plane, [""])
sketch4.MapMode = "FlatFace"
sketch4.AttachmentOffset = App.Placement(V(0, 0, 0.074 * 25.4), App.Rotation())
sketch4.addGeometry([
    Part.Circle(V(165.0087, 16.129, 0), V(0, 0, 1), 1.651),
    Part.Circle(V(21.4122, 54.2163, 0), V(0, 0, 1), 1.651),
    Part.Circle(V(21.4122, 16.129, 0), V(0, 0, 1), 1.651),
    Part.Circle(V(165.0087, 54.2163, 0), V(0, 0, 1), 1.651),
], False)
sketch4.addConstraint([
    Sketcher.Constraint("Equal", 0, 1),
    Sketcher.Constraint("Equal", 1, 2),
    Sketcher.Constraint("Equal", 2, 3),
    Sketcher.Constraint("Horizontal", 0, 3, 2, 3),
    Sketcher.Constraint("Horizontal", 1, 3, 3, 3),
    Sketcher.Constraint("Vertical", 1, 3, 2, 3),
    Sketcher.Constraint("Vertical", 0, 3, 3, 3),
    Sketcher.Constraint("Diameter", 0, Q("0.13 in")),
    Sketcher.Constraint("DistanceY", -1, 1, 0, 3, Q("0.635 in")),
    Sketcher.Constraint("DistanceX", -1, 1, 1, 3, Q("0.843 in")),
    Sketcher.Constraint("DistanceX", -1, 1, 0, 3, Q("6.4964 in")),
    Sketcher.Constraint("DistanceY", -1, 1, 1, 3, Q("2.1345 in")),
])
pad3 = doc.addObject("PartDesign::Pad", "Pad002")
body.addObject(pad3)
pad3.Profile = sketch4
pad3.Length = Q("0.5 in")
pad3.Reversed = True

doc.recompute()
